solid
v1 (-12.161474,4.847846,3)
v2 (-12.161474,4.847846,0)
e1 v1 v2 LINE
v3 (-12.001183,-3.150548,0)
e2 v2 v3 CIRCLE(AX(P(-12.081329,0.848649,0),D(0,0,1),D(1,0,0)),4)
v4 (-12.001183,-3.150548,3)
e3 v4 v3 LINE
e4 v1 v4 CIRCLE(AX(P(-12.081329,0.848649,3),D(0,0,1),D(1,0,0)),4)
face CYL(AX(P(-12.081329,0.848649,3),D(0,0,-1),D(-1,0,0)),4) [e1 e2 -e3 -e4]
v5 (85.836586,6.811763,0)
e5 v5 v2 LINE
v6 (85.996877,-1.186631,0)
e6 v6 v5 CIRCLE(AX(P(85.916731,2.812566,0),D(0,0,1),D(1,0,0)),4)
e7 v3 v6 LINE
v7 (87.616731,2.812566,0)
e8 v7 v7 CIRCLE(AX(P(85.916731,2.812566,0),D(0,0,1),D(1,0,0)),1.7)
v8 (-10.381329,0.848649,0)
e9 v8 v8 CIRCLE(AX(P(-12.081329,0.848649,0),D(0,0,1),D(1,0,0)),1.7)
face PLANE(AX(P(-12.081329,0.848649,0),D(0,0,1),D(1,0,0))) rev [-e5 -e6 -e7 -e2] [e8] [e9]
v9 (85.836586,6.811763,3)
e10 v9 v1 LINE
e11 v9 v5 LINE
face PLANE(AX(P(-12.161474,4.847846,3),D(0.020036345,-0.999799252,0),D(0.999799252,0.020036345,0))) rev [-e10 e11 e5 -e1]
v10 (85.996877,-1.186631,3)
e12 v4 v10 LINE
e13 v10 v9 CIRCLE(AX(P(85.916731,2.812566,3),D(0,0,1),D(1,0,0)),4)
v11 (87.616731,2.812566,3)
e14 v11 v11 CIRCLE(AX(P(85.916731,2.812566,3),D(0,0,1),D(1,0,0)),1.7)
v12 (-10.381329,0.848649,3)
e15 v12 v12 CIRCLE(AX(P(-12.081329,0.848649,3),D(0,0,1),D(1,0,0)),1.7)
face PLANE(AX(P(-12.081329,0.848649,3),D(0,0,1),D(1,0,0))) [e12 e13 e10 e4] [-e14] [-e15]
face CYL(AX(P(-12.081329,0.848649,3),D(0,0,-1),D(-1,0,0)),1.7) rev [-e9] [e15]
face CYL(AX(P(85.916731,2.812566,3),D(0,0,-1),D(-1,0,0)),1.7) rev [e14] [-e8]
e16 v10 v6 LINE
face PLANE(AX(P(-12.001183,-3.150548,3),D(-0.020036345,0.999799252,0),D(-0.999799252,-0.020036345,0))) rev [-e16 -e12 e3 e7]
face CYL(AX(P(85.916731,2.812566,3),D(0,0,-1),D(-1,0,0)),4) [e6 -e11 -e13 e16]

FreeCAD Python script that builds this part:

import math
import FreeCAD as App
import Part
import Sketcher

V = App.Vector

doc = App.newDocument("Part")
body = doc.addObject("PartDesign::Body", "Body")

sketch1 = body.newObject("Sketcher::SketchObject", "Sketch")
sketch1.AttachmentSupport = (doc.getObject("XY_Plane"), [""])
sketch1.MapMode = "FlatFace"
sketch1.addGeometry([
    Part.LineSegment(V(85.8, 6.8, 0), V(-12.2, 4.8, 0)),
    Part.ArcOfCircle(Part.Circle(V(-12.1, 0.8, 0), V(0, 0, 1), 4), math.radians(91), math.radians(271)),
    Part.LineSegment(V(-12, -3.2, 0), V(86, -1.2, 0)),
    Part.ArcOfCircle(Part.Circle(V(85.9, 2.8, 0), V(0, 0, 1), 4), math.radians(-89), math.radians(91)),
    Part.Circle(V(-12.1, 0.8, 0), V(0, 0, 1), 1.7),
    Part.Circle(V(85.9, 2.8, 0), V(0, 0, 1), 1.7),
], False)
sketch1.addConstraint([
    Sketcher.Constraint("Tangent", 0, 2, 1, 1),
    Sketcher.Constraint("Tangent", 1, 2, 2, 1),
    Sketcher.Constraint("Tangent", 2, 2, 3, 1),
    Sketcher.Constraint("Tangent", 3, 2, 0, 1),
    Sketcher.Constraint("Coincident", 4, 3, 1, 3),
    Sketcher.Constraint("Coincident", 5, 3, 3, 3),
    Sketcher.Constraint("Equal", 1, 3),
    Sketcher.Constraint("Equal", 4, 5),
    Sketcher.Constraint("Radius", 1, 4.0),
    Sketcher.Constraint("Diameter", 4, 3.4),
    Sketcher.Constraint("DistanceX", 1, 3, -1, 1, 12.081329),
    Sketcher.Constraint("DistanceY", -1, 1, 1, 3, 0.848649),
    Sketcher.Constraint("DistanceX", -1, 1, 3, 3, 85.916731),
    Sketcher.Constraint("DistanceY", 2, 2, -1, 1, 1.186631),
])
pad1 = body.newObject("PartDesign::Pad", "Pad")
pad1.Profile = sketch1
pad1.Length = 3

doc.recompute()
